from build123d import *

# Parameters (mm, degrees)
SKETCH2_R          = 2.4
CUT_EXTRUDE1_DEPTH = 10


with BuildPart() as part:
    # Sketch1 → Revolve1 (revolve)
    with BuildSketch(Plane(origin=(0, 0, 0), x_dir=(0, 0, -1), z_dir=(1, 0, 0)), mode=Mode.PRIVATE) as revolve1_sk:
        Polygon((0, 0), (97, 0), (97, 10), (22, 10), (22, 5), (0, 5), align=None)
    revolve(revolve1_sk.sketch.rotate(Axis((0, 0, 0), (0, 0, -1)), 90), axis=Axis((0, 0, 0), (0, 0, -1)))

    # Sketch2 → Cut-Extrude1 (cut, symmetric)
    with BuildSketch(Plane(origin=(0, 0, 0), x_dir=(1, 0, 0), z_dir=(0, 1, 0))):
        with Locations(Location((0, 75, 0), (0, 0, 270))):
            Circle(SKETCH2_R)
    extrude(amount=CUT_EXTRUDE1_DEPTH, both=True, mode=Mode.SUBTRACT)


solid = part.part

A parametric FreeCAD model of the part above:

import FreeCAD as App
import Part
import Sketcher


def add_polygon(sketch, points):
    """Adds a closed chain of lines whose ends are joined by coincident constraints."""
    first, n = sketch.GeometryCount, len(points)
    for a, b in zip(points, points[1:] + points[:1]):
        sketch.addGeometry(Part.LineSegment(App.Vector(*a, 0), App.Vector(*b, 0)), False)
    for i in range(n):
        sketch.addConstraint(Sketcher.Constraint("Coincident", first + i, 2, first + (i + 1) % n, 1))

doc = App.newDocument("Part")
body = doc.addObject("PartDesign::Body", "Body")

# Sketch on YZ plane
sketch1 = body.newObject("Sketcher::SketchObject", "Sketch")
sketch1.AttachmentSupport = (doc.getObject("YZ_Plane"), [""])
sketch1.MapMode = "FlatFace"
add_polygon(sketch1, [(0, 0), (0, -97), (10, -97), (10, -22), (5, -22), (5, 0)])  # lines 0-5
sketch1.addConstraint([
    Sketcher.Constraint("Vertical", 0),
    Sketcher.Constraint("Horizontal", 1),
    Sketcher.Constraint("Vertical", 2),
    Sketcher.Constraint("Horizontal", 3),
    Sketcher.Constraint("Vertical", 4),
    Sketcher.Constraint("Horizontal", 5),
    Sketcher.Constraint("Coincident", 5, 2, -1, 1),
    Sketcher.Constraint("Equal", 3, 5),
    Sketcher.Constraint("DistanceX", 1, 1, 1, 2, 10.0),
    Sketcher.Constraint("DistanceY", 0, 2, 0, 1, 97.0),
    Sketcher.Constraint("DistanceY", 2, 1, 2, 2, 75.0),
])
revolution = body.newObject("PartDesign::Revolution", "Revolution")
revolution.Profile = sketch1
revolution.ReferenceAxis = (sketch1, ["V_Axis"])
revolution.Angle = 360

# Sketch on XZ plane
sketch2 = body.newObject("Sketcher::SketchObject", "Sketch001")
sketch2.AttachmentSupport = (doc.getObject("XZ_Plane"), [""])
sketch2.MapMode = "FlatFace"
sketch2.addGeometry(Part.Circle(App.Vector(0, -75, 0), App.Vector(0, 0, 1), 2.4), False)
sketch2.addConstraint([
    Sketcher.Constraint("PointOnObject", 0, 3, -2),
    Sketcher.Constraint("Diameter", 0, 4.8),
    Sketcher.Constraint("DistanceY", 0, 3, -1, 1, 75.0),
])
pocket1 = body.newObject("PartDesign::Pocket", "Pocket")
pocket1.Profile = sketch2
pocket1.Length = 20
pocket1.Midplane = True

doc.recompute()
